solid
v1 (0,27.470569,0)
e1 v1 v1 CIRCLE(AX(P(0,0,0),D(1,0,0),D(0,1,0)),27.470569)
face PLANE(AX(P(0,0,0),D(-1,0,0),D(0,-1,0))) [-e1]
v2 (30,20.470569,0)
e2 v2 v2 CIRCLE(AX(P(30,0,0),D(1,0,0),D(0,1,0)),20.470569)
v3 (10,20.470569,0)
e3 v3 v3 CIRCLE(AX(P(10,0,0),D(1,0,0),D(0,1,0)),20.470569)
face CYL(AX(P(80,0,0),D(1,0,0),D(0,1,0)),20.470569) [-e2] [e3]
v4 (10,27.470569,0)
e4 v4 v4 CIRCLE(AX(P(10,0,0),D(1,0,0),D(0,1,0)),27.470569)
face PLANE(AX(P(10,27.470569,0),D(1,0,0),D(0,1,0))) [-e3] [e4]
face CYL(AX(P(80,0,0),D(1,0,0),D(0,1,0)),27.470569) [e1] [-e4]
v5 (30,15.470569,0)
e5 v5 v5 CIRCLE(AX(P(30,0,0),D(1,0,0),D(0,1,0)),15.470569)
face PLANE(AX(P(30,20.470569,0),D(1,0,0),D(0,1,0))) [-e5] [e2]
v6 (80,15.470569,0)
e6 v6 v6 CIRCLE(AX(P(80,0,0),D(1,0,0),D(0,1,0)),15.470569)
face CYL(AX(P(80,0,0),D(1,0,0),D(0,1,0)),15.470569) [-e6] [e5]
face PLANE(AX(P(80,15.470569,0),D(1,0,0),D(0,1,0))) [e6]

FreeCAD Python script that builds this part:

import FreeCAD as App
import Part
import Sketcher

V = App.Vector
Q = App.Units.Quantity

doc = App.newDocument("Part")
body = doc.addObject("PartDesign::Body", "Body")

# Sketch on XY plane
sketch1 = doc.addObject("Sketcher::SketchObject", "Sketch")
body.addObject(sketch1)
sketch1.AttachmentSupport = (doc.XY_Plane, [""])
sketch1.MapMode = "FlatFace"
sketch1.addGeometry([
    Part.LineSegment(V(0, 27, 0), V(0, 0, 0)),  # 0
    Part.LineSegment(V(0, 0, 0), V(80, 0, 0)),  # 1
    Part.LineSegment(V(80, 0, 0), V(80, 15, 0)),  # 2
    Part.LineSegment(V(80, 15, 0), V(30, 15, 0)),  # 3
    Part.LineSegment(V(30, 15, 0), V(30, 20, 0)),  # 4
    Part.LineSegment(V(30, 20, 0), V(10, 20, 0)),  # 5
    Part.LineSegment(V(10, 20, 0), V(10, 27, 0)),  # 6
    Part.LineSegment(V(10, 27, 0), V(0, 27, 0)),  # 7
], False)
sketch1.addConstraint([
    Sketcher.Constraint("Coincident", 0, 2, 1, 1),
    Sketcher.Constraint("Coincident", 1, 2, 2, 1),
    Sketcher.Constraint("Coincident", 2, 2, 3, 1),
    Sketcher.Constraint("Coincident", 3, 2, 4, 1),
    Sketcher.Constraint("Coincident", 4, 2, 5, 1),
    Sketcher.Constraint("Coincident", 5, 2, 6, 1),
    Sketcher.Constraint("Coincident", 6, 2, 7, 1),
    Sketcher.Constraint("Coincident", 7, 2, 0, 1),
    Sketcher.Constraint("Vertical", 0),
    Sketcher.Constraint("Horizontal", 1),
    Sketcher.Constraint("Vertical", 2),
    Sketcher.Constraint("Horizontal", 3),
    Sketcher.Constraint("Vertical", 4),
    Sketcher.Constraint("Horizontal", 5),
    Sketcher.Constraint("Vertical", 6),
    Sketcher.Constraint("Horizontal", 7),
    Sketcher.Constraint("Coincident", 0, 2, -1, 1),
    Sketcher.Constraint("DistanceX", 1, 1, 1, 2, Q("80 mm")),
    Sketcher.Constraint("DistanceX", 3, 2, 3, 1, Q("50 mm")),
    Sketcher.Constraint("DistanceX", 5, 2, 5, 1, Q("20 mm")),
    Sketcher.Constraint("DistanceY", 4, 1, 4, 2, Q("5 mm")),
    Sketcher.Constraint("DistanceY", 6, 1, 6, 2, Q("7 mm")),
    Sketcher.Constraint("DistanceY", 0, 2, 0, 1, Q("27.470569 mm")),
])
revolution = doc.addObject("PartDesign::Revolution", "Revolution")
body.addObject(revolution)
revolution.Profile = sketch1
revolution.ReferenceAxis = (sketch1, ["H_Axis"])
revolution.Angle = 360

doc.recompute()
